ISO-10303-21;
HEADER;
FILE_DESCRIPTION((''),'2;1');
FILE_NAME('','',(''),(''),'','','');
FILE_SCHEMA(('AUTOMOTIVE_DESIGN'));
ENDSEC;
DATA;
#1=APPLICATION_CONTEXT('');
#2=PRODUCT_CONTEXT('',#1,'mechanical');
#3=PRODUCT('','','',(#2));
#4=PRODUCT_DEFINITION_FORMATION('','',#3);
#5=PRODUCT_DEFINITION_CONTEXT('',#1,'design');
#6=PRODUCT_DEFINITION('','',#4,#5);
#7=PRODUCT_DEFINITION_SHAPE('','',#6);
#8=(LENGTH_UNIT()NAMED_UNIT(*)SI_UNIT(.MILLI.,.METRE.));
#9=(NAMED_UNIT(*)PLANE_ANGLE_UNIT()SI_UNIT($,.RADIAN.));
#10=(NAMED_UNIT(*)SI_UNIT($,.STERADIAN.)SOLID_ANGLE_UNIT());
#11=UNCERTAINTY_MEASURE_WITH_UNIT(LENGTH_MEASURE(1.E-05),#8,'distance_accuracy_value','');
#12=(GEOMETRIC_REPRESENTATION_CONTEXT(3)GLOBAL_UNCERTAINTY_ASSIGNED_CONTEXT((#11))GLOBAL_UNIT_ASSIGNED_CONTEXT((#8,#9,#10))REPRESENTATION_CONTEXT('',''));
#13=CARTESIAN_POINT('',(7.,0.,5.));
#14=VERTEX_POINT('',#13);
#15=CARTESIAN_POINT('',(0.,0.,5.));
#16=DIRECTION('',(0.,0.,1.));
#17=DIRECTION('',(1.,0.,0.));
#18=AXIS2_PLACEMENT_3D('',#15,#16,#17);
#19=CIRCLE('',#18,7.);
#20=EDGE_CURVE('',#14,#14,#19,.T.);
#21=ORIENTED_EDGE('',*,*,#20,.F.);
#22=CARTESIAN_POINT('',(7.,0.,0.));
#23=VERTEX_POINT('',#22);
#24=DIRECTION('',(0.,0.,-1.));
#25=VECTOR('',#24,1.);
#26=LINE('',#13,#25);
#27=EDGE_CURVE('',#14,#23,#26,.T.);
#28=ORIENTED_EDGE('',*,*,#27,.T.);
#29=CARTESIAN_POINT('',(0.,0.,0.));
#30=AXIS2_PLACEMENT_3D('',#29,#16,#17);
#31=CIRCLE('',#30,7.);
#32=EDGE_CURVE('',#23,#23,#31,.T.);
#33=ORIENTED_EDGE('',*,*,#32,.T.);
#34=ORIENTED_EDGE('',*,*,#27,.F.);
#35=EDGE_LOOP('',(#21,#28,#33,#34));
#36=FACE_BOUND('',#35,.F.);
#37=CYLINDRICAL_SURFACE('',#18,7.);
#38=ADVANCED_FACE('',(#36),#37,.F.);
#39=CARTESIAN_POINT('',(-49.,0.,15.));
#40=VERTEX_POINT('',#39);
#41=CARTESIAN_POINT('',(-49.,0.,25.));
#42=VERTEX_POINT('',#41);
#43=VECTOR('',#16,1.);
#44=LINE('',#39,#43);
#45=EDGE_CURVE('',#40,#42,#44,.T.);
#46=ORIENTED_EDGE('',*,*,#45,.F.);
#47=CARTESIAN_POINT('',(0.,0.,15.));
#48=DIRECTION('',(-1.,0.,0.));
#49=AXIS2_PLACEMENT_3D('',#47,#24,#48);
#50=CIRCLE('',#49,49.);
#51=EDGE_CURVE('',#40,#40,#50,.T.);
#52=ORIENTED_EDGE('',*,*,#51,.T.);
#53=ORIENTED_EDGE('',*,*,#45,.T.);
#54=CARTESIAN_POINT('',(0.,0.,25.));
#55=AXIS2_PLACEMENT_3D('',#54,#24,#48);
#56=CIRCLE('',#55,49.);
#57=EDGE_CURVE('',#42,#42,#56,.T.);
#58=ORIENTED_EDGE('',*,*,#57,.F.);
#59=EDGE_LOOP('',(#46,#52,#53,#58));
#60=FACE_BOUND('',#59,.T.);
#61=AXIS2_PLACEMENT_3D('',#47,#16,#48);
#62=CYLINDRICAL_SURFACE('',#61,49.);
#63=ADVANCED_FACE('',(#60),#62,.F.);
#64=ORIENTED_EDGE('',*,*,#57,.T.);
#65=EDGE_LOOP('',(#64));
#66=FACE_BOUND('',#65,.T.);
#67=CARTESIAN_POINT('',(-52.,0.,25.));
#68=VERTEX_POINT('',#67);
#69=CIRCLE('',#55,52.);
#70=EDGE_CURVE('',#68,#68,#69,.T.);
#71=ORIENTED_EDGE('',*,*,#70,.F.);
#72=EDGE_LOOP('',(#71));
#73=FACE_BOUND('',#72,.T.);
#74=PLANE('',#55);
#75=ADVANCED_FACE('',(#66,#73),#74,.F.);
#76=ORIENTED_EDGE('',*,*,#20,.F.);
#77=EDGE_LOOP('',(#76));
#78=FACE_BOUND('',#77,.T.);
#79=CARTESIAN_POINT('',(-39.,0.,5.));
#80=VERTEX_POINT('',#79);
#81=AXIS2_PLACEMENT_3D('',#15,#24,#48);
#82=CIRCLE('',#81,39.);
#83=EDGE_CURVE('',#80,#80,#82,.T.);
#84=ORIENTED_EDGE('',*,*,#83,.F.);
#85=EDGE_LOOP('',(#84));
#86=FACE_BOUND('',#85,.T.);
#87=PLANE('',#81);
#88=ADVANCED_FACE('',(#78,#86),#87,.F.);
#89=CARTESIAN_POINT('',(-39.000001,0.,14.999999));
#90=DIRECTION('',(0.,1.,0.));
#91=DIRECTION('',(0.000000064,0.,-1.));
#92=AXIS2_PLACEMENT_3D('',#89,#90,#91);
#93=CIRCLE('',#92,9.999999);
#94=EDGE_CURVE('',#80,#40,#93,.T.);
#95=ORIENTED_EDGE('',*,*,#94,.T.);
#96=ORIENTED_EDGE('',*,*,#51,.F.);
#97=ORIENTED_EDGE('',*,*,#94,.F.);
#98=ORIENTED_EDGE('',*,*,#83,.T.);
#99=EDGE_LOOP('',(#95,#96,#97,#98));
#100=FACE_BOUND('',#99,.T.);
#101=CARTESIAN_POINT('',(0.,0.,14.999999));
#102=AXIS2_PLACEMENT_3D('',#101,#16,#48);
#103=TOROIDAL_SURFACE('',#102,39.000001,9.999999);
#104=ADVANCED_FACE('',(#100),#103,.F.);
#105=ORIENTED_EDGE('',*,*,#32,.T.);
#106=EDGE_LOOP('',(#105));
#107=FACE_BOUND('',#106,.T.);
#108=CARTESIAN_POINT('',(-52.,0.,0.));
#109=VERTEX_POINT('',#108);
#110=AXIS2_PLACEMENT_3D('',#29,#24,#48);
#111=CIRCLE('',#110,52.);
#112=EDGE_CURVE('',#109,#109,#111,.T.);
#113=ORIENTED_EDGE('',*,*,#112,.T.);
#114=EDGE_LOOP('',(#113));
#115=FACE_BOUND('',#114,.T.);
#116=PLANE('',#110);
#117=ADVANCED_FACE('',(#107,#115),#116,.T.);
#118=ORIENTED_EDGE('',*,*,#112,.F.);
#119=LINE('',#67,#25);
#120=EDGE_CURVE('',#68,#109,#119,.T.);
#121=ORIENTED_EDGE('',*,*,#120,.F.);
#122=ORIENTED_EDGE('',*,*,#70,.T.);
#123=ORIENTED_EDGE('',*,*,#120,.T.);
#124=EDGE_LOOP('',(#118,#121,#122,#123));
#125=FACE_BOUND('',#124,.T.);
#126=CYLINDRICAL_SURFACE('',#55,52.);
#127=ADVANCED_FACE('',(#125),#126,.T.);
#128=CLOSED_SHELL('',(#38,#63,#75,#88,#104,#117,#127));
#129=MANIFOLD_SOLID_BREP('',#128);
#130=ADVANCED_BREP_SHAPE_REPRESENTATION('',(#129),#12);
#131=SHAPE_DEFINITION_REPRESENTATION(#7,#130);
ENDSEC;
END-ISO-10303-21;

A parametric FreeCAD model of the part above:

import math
import FreeCAD as App
import Part
import Sketcher
from FreeCAD import Vector

doc = App.newDocument("Part")
params = doc.addObject("Spreadsheet::Sheet", "Params")
for row, (alias, value) in enumerate([
    ("sketch1_radius", "9.999999 mm"),
    ("sketch1_width", "39 mm"),
    ("sketch1_width2", "3 mm"),
    ("sketch1_height", "5 mm"),
    ("sketch1_height2", "10 mm"),
    ("revolution_angle", "360 deg"),
    ("sketch2_diameter", "14 mm"),
    ("pocket1_length", "25 mm"),
], start=1):
    params.set(f"A{row}", alias)
    params.set(f"B{row}", "=" + value)
    params.setAlias(f"B{row}", alias)

body = doc.addObject("PartDesign::Body", "Body")

# Sketch on XZ plane
sketch1 = body.newObject("Sketcher::SketchObject", "Sketch")
sketch1.AttachmentSupport = (doc.getObject("XZ_Plane"), [""])
sketch1.MapMode = "FlatFace"
sketch1.addGeometry(Part.LineSegment(Vector(0, 0, 0), Vector(0, 5, 0)), False)
sketch1.addGeometry(Part.LineSegment(Vector(0, 5, 0), Vector(-39, 5, 0)), False)
sketch1.addGeometry(Part.ArcOfCircle(Part.Circle(Vector(-39, 15, 0), Vector(0, 0, 1), 10), math.radians(180), math.radians(270)), False)
sketch1.addGeometry(Part.LineSegment(Vector(-49, 15, 0), Vector(-49, 25, 0)), False)
sketch1.addGeometry(Part.LineSegment(Vector(-49, 25, 0), Vector(-52, 25, 0)), False)
sketch1.addGeometry(Part.LineSegment(Vector(-52, 25, 0), Vector(-52, 0, 0)), False)
sketch1.addGeometry(Part.LineSegment(Vector(-52, 0, 0), Vector(0, 0, 0)), False)
sketch1.addConstraint(Sketcher.Constraint("Coincident", 0, 2, 1, 1))
sketch1.addConstraint(Sketcher.Constraint("Tangent", 1, 2, 2, 2))
sketch1.addConstraint(Sketcher.Constraint("Tangent", 2, 1, 3, 1))
sketch1.addConstraint(Sketcher.Constraint("Coincident", 3, 2, 4, 1))
sketch1.addConstraint(Sketcher.Constraint("Coincident", 4, 2, 5, 1))
sketch1.addConstraint(Sketcher.Constraint("Coincident", 5, 2, 6, 1))
sketch1.addConstraint(Sketcher.Constraint("Coincident", 6, 2, 0, 1))
sketch1.addConstraint(Sketcher.Constraint("Vertical", 0))
sketch1.addConstraint(Sketcher.Constraint("Horizontal", 1))
sketch1.addConstraint(Sketcher.Constraint("Vertical", 3))
sketch1.addConstraint(Sketcher.Constraint("Horizontal", 4))
sketch1.addConstraint(Sketcher.Constraint("Vertical", 5))
sketch1.addConstraint(Sketcher.Constraint("Horizontal", 6))
sketch1.addConstraint(Sketcher.Constraint("Coincident", 6, 2, -1, 1))
sketch1.addConstraint(Sketcher.Constraint("Radius", 2, 9.999999))
sketch1.addConstraint(Sketcher.Constraint("DistanceX", 1, 2, 1, 1, 39.0))
sketch1.addConstraint(Sketcher.Constraint("DistanceX", 4, 2, 4, 1, 3.0))
sketch1.addConstraint(Sketcher.Constraint("DistanceY", 0, 1, 0, 2, 5.0))
sketch1.addConstraint(Sketcher.Constraint("DistanceY", 3, 1, 3, 2, 10.0))
sketch1.setExpression("Constraints[14]", "Params.sketch1_radius")
sketch1.setExpression("Constraints[15]", "Params.sketch1_width")
sketch1.setExpression("Constraints[16]", "Params.sketch1_width2")
sketch1.setExpression("Constraints[17]", "Params.sketch1_height")
sketch1.setExpression("Constraints[18]", "Params.sketch1_height2")
revolution = body.newObject("PartDesign::Revolution", "Revolution")
revolution.Profile = sketch1
revolution.ReferenceAxis = (sketch1, ["V_Axis"])
revolution.setExpression("Angle", "Params.revolution_angle")

# Sketch on XY plane
sketch2 = body.newObject("Sketcher::SketchObject", "Sketch001")
sketch2.AttachmentSupport = (doc.getObject("XY_Plane"), [""])
sketch2.MapMode = "FlatFace"
sketch2.AttachmentOffset = App.Placement(Vector(0, 0, 5), App.Rotation())
sketch2.addGeometry(Part.Circle(Vector(0, 0, 0), Vector(0, 0, 1), 7), False)
sketch2.addConstraint(Sketcher.Constraint("Coincident", 0, 3, -1, 1))
sketch2.addConstraint(Sketcher.Constraint("Diameter", 0, 14.0))
sketch2.setExpression("Constraints[1]", "Params.sketch2_diameter")
pocket1 = body.newObject("PartDesign::Pocket", "Pocket")
pocket1.Profile = sketch2
pocket1.setExpression("Length", "Params.pocket1_length")

doc.recompute()
